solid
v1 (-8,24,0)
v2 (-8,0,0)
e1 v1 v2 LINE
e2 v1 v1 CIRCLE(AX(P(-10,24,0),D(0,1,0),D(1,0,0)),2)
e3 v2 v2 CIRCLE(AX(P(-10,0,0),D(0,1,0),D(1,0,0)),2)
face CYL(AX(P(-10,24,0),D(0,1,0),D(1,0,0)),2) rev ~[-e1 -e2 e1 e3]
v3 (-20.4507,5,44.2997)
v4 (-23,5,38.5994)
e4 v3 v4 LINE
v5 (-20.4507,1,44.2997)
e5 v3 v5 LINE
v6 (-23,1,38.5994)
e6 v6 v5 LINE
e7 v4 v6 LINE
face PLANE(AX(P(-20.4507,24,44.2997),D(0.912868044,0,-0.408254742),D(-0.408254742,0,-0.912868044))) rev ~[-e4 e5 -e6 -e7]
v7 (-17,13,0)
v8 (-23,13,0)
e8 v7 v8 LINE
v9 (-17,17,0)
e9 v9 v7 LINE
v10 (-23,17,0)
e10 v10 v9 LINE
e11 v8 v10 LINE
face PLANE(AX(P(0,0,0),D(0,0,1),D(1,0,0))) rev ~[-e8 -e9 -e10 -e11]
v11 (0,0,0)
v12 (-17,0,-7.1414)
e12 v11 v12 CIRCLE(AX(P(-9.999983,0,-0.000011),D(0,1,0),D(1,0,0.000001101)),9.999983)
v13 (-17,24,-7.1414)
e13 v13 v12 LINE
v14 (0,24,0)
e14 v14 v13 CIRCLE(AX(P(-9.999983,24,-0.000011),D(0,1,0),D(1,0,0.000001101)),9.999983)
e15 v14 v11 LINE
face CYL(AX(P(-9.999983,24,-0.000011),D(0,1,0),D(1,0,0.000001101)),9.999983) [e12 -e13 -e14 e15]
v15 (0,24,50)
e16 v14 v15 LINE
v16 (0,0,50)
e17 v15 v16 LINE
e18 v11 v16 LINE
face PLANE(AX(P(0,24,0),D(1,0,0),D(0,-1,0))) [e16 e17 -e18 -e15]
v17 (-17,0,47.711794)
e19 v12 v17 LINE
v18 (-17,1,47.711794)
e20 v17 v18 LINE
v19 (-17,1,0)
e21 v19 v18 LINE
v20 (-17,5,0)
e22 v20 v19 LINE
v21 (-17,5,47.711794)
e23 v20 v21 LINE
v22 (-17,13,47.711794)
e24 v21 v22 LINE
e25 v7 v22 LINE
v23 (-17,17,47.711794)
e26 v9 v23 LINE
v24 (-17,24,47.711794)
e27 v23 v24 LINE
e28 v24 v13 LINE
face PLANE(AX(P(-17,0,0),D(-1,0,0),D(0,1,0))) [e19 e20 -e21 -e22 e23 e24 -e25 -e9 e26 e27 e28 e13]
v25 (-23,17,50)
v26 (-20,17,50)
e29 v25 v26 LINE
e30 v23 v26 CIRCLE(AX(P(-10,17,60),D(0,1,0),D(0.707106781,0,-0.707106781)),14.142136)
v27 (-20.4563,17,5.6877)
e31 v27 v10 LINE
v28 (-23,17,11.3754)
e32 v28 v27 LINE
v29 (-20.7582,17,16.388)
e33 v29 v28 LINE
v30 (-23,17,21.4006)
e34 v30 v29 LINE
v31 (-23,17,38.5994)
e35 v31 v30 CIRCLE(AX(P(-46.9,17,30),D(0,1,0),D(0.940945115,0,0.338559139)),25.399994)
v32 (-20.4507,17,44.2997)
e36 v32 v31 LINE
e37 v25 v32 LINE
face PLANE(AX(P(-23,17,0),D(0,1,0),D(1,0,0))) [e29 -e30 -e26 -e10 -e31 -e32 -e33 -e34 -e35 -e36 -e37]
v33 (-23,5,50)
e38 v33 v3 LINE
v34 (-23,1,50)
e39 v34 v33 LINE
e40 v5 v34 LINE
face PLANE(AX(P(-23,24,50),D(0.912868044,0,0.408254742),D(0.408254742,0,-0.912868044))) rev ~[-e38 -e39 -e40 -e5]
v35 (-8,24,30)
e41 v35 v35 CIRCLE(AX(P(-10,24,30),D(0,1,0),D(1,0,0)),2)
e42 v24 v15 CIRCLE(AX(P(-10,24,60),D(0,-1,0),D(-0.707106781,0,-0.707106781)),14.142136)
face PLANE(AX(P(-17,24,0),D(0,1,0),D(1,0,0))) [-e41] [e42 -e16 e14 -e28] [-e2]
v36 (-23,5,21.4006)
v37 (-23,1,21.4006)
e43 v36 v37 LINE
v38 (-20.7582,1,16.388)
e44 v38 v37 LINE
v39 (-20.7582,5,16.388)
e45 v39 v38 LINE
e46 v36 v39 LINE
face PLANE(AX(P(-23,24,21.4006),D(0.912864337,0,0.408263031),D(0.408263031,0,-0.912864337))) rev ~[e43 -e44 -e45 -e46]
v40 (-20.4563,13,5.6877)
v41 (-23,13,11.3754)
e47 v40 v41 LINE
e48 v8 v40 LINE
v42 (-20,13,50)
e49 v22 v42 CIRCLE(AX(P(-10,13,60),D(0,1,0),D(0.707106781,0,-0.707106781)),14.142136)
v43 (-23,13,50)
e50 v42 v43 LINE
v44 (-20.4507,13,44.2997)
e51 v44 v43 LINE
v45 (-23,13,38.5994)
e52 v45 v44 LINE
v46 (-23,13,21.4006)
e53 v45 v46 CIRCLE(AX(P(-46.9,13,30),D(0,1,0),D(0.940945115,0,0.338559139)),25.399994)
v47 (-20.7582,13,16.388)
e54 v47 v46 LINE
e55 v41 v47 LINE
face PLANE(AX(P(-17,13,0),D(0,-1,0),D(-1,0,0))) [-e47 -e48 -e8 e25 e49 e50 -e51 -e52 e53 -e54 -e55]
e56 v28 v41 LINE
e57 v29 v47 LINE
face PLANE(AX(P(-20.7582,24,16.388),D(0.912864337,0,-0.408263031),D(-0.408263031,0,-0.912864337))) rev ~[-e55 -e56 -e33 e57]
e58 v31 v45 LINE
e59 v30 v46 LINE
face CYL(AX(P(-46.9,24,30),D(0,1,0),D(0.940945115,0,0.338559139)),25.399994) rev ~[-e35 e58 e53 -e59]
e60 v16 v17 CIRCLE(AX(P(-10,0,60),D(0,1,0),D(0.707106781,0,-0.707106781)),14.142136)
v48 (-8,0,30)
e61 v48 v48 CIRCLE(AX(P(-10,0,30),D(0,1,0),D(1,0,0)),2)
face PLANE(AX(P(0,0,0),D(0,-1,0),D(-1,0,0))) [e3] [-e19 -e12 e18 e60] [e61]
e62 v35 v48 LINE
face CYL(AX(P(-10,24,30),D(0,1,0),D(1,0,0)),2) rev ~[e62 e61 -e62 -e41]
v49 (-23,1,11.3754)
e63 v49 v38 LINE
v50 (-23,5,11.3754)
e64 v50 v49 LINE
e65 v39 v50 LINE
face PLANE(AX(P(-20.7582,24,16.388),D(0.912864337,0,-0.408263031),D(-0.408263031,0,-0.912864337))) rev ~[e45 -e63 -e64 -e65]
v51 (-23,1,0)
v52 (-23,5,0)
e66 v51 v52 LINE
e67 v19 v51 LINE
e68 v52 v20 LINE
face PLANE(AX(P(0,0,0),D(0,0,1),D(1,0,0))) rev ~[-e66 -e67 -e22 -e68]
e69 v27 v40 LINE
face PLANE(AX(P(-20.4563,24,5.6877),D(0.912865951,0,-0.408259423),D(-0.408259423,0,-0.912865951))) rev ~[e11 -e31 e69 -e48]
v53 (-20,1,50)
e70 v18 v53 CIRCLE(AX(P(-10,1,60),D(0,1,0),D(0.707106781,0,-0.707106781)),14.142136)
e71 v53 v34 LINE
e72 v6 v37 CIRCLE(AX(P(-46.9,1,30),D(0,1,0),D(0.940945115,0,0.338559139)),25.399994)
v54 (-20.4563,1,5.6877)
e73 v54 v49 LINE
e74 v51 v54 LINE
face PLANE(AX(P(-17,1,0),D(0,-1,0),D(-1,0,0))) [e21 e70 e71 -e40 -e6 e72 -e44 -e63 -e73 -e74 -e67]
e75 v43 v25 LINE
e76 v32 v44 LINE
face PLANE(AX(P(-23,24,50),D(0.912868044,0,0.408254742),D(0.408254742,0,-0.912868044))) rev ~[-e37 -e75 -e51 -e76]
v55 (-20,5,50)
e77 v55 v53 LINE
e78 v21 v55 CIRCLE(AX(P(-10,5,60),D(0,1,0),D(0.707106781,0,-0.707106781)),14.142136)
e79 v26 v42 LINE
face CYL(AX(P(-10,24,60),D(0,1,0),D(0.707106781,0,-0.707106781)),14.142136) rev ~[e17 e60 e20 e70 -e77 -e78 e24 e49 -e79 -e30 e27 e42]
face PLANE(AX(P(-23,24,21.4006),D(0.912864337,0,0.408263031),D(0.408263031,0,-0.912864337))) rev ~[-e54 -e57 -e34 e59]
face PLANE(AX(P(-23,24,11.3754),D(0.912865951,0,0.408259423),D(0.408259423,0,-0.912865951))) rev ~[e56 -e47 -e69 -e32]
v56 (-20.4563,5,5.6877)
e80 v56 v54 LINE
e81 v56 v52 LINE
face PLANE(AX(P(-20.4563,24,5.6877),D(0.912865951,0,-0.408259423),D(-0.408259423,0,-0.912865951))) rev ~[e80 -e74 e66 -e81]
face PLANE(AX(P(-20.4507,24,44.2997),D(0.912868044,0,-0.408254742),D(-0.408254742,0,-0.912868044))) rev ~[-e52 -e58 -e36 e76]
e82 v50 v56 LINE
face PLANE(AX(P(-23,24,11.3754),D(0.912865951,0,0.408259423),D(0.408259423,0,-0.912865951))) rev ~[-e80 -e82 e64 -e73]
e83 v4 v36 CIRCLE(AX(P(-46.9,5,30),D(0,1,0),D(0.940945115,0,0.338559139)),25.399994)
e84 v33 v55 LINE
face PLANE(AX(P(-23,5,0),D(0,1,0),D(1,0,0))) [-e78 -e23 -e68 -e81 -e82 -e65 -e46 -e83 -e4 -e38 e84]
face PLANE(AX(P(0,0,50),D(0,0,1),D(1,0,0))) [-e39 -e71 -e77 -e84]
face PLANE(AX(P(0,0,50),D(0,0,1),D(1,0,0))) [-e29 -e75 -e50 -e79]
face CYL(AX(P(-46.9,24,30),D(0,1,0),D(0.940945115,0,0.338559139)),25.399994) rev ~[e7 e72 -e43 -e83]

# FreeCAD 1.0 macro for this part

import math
import FreeCAD as App
import Part
import Sketcher
from FreeCAD import Vector


def add_polygon(sketch, points):
    """Adds a closed chain of lines whose ends are joined by coincident constraints."""
    first, n = sketch.GeometryCount, len(points)
    for a, b in zip(points, points[1:] + points[:1]):
        sketch.addGeometry(Part.LineSegment(App.Vector(*a, 0), App.Vector(*b, 0)), False)
    for i in range(n):
        sketch.addConstraint(Sketcher.Constraint("Coincident", first + i, 2, first + (i + 1) % n, 1))

doc = App.newDocument("Part")
body = doc.addObject("PartDesign::Body", "Body")

# Sketch on XY plane
sketch1 = body.newObject("Sketcher::SketchObject", "Sketch")
sketch1.AttachmentSupport = (doc.getObject("XY_Plane"), [""])
sketch1.MapMode = "FlatFace"
add_polygon(sketch1, [(-17, 1), (-17, 0), (0, 0), (0, 24), (-17, 24), (-17, 17), (-23, 17), (-23, 13), (-17, 13), (-17, 5), (-23, 5), (-23, 1)])  # lines 0-11
sketch1.addConstraint([
    Sketcher.Constraint("Vertical", 0),
    Sketcher.Constraint("Horizontal", 1),
    Sketcher.Constraint("Vertical", 2),
    Sketcher.Constraint("Horizontal", 3),
    Sketcher.Constraint("Vertical", 4),
    Sketcher.Constraint("Horizontal", 5),
    Sketcher.Constraint("Vertical", 6),
    Sketcher.Constraint("Horizontal", 7),
    Sketcher.Constraint("Vertical", 8),
    Sketcher.Constraint("Horizontal", 9),
    Sketcher.Constraint("Vertical", 10),
    Sketcher.Constraint("Horizontal", 11),
    Sketcher.Constraint("Coincident", 1, 2, -1, 1),
    Sketcher.Constraint("Vertical", 0, 2, 3, 2),
    Sketcher.Constraint("Vertical", 4, 2, 7, 2),
    Sketcher.Constraint("Vertical", 6, 2, 9, 2),
    Sketcher.Constraint("Equal", 6, 10),
    Sketcher.Constraint("DistanceX", 1, 1, 1, 2, 17.0),
    Sketcher.Constraint("DistanceX", 5, 2, 5, 1, 6.0),
    Sketcher.Constraint("DistanceY", 0, 2, 0, 1, 1.0),
    Sketcher.Constraint("DistanceY", 2, 1, 2, 2, 24.0),
    Sketcher.Constraint("DistanceY", 6, 2, 6, 1, 4.0),
    Sketcher.Constraint("DistanceY", 8, 2, 8, 1, 8.0),
])
pad1 = body.newObject("PartDesign::Pad", "Pad")
pad1.Profile = sketch1
pad1.Length = 50

# Sketch on XZ plane
sketch2 = body.newObject("Sketcher::SketchObject", "Sketch001")
sketch2.AttachmentSupport = (doc.getObject("XZ_Plane"), [""])
sketch2.MapMode = "FlatFace"
sketch2.AttachmentOffset = App.Placement(Vector(0, 0, -24), App.Rotation())
sketch2.addGeometry([
    Part.LineSegment(Vector(-17, 0, 0), Vector(0, 0, 0)),
    Part.ArcOfCircle(Part.Circle(Vector(-10, 0, 0), Vector(0, 0, 1), 10), math.radians(-134), math.radians(0)),
    Part.LineSegment(Vector(-17, -7, 0), Vector(-17, 0, 0)),
], False)
sketch2.addConstraint([
    Sketcher.Constraint("Coincident", 0, 2, 1, 2),
    Sketcher.Constraint("Coincident", 1, 1, 2, 1),
    Sketcher.Constraint("Coincident", 2, 2, 0, 1),
    Sketcher.Constraint("Horizontal", 0),
    Sketcher.Constraint("Vertical", 2),
    Sketcher.Constraint("Coincident", 0, 2, -1, 1),
    Sketcher.Constraint("PointOnObject", 1, 3, -1),
    Sketcher.Constraint("Radius", 1, 10.0),
    Sketcher.Constraint("DistanceX", 0, 1, 0, 2, 17.0),
])
pad2 = body.newObject("PartDesign::Pad", "Pad001")
pad2.Profile = sketch2
pad2.Length = 24

# Sketch on XZ plane
sketch3 = body.newObject("Sketcher::SketchObject", "Sketch002")
sketch3.AttachmentSupport = (doc.getObject("XZ_Plane"), [""])
sketch3.MapMode = "FlatFace"
sketch3.AttachmentOffset = App.Placement(Vector(0, 0, -24), App.Rotation())
sketch3.addGeometry(Part.Circle(Vector(-10, 0, 0), Vector(0, 0, 1), 2), False)  # 0
sketch3.addGeometry(Part.Circle(Vector(-10, 30, 0), Vector(0, 0, 1), 2), False)  # 1
sketch3.addGeometry(Part.ArcOfCircle(Part.Circle(Vector(-10, 60, 0), Vector(0, 0, 1), 14.1), math.radians(-135), math.radians(-45)), False)  # 2
sketch3.addGeometry(Part.LineSegment(Vector(-20, 50, 0), Vector(0, 50, 0)), False)  # 3
add_polygon(sketch3, [(-23, 0), (-23, 11.4), (-20.5, 5.7)])  # lines 4-6
add_polygon(sketch3, [(-23, 11.4), (-23, 21.4), (-20.8, 16.4)])  # lines 7-9
sketch3.addGeometry(Part.LineSegment(Vector(-23, 21.4, 0), Vector(-23, 38.6, 0)), False)  # 10
sketch3.addGeometry(Part.ArcOfCircle(Part.Circle(Vector(-46.9, 30, 0), Vector(0, 0, 1), 25.4), math.radians(-20), math.radians(20)), False)  # 11
add_polygon(sketch3, [(-20.5, 44.3), (-23, 38.6), (-23, 50)])  # lines 12-14
sketch3.addConstraint([
    Sketcher.Constraint("Coincident", 2, 1, 3, 1),
    Sketcher.Constraint("Coincident", 3, 2, 2, 2),
    Sketcher.Constraint("Coincident", 10, 1, 11, 1),
    Sketcher.Constraint("Coincident", 11, 2, 10, 2),
    Sketcher.Constraint("Horizontal", 3),
    Sketcher.Constraint("Vertical", 4),
    Sketcher.Constraint("Vertical", 7),
    Sketcher.Constraint("Vertical", 10),
    Sketcher.Constraint("Vertical", 13),
    Sketcher.Constraint("Coincident", 9, 2, 4, 2),
    Sketcher.Constraint("Coincident", 10, 1, 7, 2),
    Sketcher.Constraint("Coincident", 12, 2, 11, 2),
    Sketcher.Constraint("Equal", 0, 1),
    Sketcher.Constraint("PointOnObject", 0, 3, -1),
    Sketcher.Constraint("PointOnObject", 3, 2, -2),
    Sketcher.Constraint("PointOnObject", 6, 2, -1),
    Sketcher.Constraint("Parallel", 5, 8),
    Sketcher.Constraint("Parallel", 6, 9),
    Sketcher.Constraint("Parallel", 9, 12),
    Sketcher.Constraint("Parallel", 8, 14),
    Sketcher.Constraint("Horizontal", 1, 3, 11, 3),
    Sketcher.Constraint("Horizontal", 3, 2, 13, 2),
    Sketcher.Constraint("Vertical", 0, 3, 1, 3),
    Sketcher.Constraint("Vertical", 1, 3, 2, 3),
    Sketcher.Constraint("Equal", 5, 6),
    Sketcher.Constraint("Diameter", 0, 4.0),
    Sketcher.Constraint("Radius", 11, 25.4),
    Sketcher.Constraint("DistanceY", -1, 1, 2, 3, 60.0),
    Sketcher.Constraint("DistanceX", 3, 1, 3, 2, 20.0),
    Sketcher.Constraint("DistanceY", -1, 1, 1, 3, 30.0),
    Sketcher.Constraint("DistanceY", -1, 1, 2, 1, 50.0),
    Sketcher.Constraint("DistanceX", 4, 2, -1, 1, 23.0),
    Sketcher.Constraint("DistanceX", 11, 3, -1, 1, 46.9),
    Sketcher.Constraint("Distance", 8, 5.491),
    Sketcher.Constraint("DistanceY", 4, 1, 4, 2, 11.3754),
])
pocket1 = body.newObject("PartDesign::Pocket", "Pocket")
pocket1.Profile = sketch3
pocket1.Type = "ThroughAll"
pocket1.Reversed = True

doc.recompute()
